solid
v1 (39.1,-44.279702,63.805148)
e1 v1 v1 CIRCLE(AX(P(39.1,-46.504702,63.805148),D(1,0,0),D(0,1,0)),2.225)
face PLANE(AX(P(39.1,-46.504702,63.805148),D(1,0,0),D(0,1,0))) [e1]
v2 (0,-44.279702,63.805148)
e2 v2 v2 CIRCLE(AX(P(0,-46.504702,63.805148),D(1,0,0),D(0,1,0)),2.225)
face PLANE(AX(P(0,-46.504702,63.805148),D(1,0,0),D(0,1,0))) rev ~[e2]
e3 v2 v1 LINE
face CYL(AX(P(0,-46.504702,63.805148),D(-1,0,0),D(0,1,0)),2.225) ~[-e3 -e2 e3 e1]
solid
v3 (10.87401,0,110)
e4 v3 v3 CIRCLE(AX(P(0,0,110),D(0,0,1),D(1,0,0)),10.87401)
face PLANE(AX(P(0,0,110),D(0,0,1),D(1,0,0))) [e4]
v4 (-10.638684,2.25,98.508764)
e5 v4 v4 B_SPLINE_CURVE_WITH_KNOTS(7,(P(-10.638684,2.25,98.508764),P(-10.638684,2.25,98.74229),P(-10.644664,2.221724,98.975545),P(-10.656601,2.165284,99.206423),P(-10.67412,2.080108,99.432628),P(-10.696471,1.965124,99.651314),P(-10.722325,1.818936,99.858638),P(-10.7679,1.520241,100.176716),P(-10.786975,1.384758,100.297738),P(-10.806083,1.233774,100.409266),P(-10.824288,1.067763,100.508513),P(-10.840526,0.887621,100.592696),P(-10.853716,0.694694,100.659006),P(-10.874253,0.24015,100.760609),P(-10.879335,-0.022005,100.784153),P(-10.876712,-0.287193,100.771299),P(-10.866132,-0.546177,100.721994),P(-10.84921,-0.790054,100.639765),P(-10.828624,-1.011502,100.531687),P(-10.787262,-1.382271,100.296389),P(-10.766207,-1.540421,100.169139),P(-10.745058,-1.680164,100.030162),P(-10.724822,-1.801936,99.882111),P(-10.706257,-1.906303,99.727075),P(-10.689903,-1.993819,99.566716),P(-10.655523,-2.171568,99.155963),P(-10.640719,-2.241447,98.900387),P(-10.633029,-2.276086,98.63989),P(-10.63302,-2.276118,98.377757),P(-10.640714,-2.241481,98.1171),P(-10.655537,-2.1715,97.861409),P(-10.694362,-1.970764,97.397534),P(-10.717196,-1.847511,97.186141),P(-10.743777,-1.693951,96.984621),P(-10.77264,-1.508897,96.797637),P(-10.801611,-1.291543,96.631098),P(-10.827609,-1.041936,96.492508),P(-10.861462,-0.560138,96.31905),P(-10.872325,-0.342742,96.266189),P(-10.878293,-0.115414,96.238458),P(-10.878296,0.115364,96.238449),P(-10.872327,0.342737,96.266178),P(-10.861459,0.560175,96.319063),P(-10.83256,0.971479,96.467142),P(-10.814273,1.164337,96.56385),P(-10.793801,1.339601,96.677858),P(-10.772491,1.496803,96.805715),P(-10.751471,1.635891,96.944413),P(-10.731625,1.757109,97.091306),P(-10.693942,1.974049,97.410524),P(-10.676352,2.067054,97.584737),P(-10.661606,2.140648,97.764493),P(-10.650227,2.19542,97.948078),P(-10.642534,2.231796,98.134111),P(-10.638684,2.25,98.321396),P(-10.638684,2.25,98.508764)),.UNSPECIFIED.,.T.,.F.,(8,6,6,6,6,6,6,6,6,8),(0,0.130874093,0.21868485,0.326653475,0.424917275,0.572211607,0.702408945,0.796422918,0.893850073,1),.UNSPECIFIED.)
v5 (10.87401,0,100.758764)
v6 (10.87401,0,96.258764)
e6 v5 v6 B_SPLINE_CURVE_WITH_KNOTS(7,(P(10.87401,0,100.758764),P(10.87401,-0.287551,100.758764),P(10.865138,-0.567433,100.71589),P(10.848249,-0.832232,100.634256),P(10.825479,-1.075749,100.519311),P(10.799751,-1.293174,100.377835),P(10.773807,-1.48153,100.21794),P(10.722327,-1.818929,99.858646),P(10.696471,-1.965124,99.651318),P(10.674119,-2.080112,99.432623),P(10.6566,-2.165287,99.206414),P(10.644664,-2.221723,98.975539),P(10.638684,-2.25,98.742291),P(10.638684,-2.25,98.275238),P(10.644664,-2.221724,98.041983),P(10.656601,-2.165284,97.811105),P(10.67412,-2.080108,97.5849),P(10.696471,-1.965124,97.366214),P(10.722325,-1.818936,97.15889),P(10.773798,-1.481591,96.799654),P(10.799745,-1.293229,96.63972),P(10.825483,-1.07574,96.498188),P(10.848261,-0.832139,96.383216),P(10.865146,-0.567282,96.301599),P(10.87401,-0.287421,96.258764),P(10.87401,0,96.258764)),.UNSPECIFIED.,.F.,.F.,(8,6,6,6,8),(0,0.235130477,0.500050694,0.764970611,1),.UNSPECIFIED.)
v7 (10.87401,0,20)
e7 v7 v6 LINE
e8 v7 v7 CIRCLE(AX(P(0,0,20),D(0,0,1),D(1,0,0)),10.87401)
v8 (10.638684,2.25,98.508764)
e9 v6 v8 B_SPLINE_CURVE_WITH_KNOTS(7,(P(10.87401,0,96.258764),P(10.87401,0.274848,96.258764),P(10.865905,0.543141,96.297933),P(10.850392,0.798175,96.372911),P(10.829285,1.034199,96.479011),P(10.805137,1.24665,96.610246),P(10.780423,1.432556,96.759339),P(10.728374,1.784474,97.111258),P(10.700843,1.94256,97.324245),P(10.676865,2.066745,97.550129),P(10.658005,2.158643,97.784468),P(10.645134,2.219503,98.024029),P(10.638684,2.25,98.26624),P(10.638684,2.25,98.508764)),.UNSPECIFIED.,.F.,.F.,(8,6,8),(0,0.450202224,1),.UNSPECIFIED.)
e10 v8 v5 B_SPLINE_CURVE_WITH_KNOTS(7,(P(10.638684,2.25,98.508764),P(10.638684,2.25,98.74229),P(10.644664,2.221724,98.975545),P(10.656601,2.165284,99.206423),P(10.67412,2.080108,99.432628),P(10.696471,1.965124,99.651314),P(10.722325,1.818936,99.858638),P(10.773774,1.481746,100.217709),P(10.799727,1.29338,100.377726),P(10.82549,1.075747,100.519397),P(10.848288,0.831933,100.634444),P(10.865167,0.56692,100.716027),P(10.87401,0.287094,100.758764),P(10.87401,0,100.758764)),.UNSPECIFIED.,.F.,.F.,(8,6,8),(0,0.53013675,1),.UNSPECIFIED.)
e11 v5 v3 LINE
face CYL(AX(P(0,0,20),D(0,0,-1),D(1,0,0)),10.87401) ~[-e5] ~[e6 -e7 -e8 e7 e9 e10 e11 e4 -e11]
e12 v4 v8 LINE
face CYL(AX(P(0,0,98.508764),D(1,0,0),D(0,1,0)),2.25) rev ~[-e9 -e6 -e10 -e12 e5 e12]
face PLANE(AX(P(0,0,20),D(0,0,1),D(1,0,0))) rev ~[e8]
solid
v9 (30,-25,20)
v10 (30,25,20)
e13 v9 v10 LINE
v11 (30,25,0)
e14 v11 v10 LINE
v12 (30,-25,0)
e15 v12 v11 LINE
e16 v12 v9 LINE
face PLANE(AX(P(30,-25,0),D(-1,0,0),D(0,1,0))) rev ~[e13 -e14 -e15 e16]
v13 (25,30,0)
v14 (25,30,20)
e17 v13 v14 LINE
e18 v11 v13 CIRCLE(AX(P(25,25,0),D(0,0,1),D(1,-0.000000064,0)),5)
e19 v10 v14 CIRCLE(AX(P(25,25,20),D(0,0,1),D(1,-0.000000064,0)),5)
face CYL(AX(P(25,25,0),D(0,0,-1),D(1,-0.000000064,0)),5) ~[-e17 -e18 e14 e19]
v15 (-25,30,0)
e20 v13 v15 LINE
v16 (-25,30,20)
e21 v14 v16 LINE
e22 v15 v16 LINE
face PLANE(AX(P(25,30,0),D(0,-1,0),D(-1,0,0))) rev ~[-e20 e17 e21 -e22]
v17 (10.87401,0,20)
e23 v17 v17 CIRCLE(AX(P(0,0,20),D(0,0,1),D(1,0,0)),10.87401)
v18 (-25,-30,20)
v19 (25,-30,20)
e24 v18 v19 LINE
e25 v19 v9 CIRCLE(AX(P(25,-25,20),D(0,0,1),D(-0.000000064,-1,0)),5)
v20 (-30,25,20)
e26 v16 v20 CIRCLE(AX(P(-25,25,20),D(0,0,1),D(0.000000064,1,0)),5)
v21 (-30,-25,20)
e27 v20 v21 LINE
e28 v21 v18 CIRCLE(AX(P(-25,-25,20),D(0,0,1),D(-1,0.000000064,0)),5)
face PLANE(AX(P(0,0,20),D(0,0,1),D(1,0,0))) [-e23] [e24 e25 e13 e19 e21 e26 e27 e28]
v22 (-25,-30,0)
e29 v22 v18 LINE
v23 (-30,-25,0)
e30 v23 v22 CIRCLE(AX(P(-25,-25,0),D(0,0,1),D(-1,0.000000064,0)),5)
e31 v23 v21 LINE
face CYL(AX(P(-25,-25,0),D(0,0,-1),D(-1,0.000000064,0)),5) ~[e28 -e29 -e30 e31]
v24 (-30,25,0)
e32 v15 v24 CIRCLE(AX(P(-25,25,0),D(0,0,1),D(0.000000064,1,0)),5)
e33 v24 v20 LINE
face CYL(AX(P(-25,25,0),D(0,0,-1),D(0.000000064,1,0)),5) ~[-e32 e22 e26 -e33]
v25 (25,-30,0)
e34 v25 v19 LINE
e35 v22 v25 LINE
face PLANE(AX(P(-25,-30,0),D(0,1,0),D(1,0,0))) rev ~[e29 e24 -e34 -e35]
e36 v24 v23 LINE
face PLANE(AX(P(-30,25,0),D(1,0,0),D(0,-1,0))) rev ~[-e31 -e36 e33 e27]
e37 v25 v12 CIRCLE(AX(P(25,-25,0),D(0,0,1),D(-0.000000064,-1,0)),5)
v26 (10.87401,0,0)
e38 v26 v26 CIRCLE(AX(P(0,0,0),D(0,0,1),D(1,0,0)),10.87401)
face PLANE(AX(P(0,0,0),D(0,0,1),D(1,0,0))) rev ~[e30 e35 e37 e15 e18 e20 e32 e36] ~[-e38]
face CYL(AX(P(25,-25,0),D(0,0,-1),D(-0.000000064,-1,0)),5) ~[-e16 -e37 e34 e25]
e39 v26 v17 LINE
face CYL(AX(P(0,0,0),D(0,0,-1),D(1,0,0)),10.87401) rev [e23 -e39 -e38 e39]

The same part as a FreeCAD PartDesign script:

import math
import FreeCAD as App
import Part
import Sketcher

V = App.Vector
Q = App.Units.Quantity

doc = App.newDocument("Part")
params = doc.addObject("Spreadsheet::Sheet", "Params")
for row, (alias, value) in enumerate([
    ("sketch1_radius", "5 mm"),
    ("sketch1_width", "50 mm"),
    ("pad1_length", "20 mm"),
    ("pad2_length", "90 mm"),
    ("sketch3_diameter", "4.5 mm"),
    ("pocket1_length", "45.4 mm"),
    ("sketch4_diameter", "4.45 mm"),
    ("pad3_length", "39.1 mm"),
], start=1):
    params.set(f"A{row}", alias)
    params.set(f"B{row}", "=" + value)
    params.setAlias(f"B{row}", alias)

body = doc.addObject("PartDesign::Body", "Body")

# Sketch on XY plane
sketch1 = body.newObject("Sketcher::SketchObject", "Sketch")
sketch1.AttachmentSupport = (doc.getObject("XY_Plane"), [""])
sketch1.MapMode = "FlatFace"
sketch1.addGeometry(Part.LineSegment(V(25, 30, 0), V(-25, 30, 0)), False)
sketch1.addGeometry(Part.ArcOfCircle(Part.Circle(V(-25, 25, 0), V(0, 0, 1), 5), math.radians(90), math.radians(180)), False)
sketch1.addGeometry(Part.LineSegment(V(-30, 25, 0), V(-30, -25, 0)), False)
sketch1.addGeometry(Part.ArcOfCircle(Part.Circle(V(-25, -25, 0), V(0, 0, 1), 5), math.radians(180), math.radians(270)), False)
sketch1.addGeometry(Part.LineSegment(V(-25, -30, 0), V(25, -30, 0)), False)
sketch1.addGeometry(Part.ArcOfCircle(Part.Circle(V(25, -25, 0), V(0, 0, 1), 5), math.radians(-90), math.radians(0)), False)
sketch1.addGeometry(Part.LineSegment(V(30, -25, 0), V(30, 25, 0)), False)
sketch1.addGeometry(Part.ArcOfCircle(Part.Circle(V(25, 25, 0), V(0, 0, 1), 5), math.radians(0), math.radians(90)), False)
sketch1.addGeometry(Part.Circle(V(0, 0, 0), V(0, 0, 1), 10.9), False)
sketch1.addConstraint(Sketcher.Constraint("Tangent", 0, 2, 1, 1))
sketch1.addConstraint(Sketcher.Constraint("Tangent", 1, 2, 2, 1))
sketch1.addConstraint(Sketcher.Constraint("Tangent", 2, 2, 3, 1))
sketch1.addConstraint(Sketcher.Constraint("Tangent", 3, 2, 4, 1))
sketch1.addConstraint(Sketcher.Constraint("Tangent", 4, 2, 5, 1))
sketch1.addConstraint(Sketcher.Constraint("Tangent", 5, 2, 6, 1))
sketch1.addConstraint(Sketcher.Constraint("Tangent", 6, 2, 7, 1))
sketch1.addConstraint(Sketcher.Constraint("Tangent", 7, 2, 0, 1))
sketch1.addConstraint(Sketcher.Constraint("Horizontal", 0))
sketch1.addConstraint(Sketcher.Constraint("Vertical", 2))
sketch1.addConstraint(Sketcher.Constraint("Horizontal", 4))
sketch1.addConstraint(Sketcher.Constraint("Vertical", 6))
sketch1.addConstraint(Sketcher.Constraint("Coincident", 8, 3, -1, 1))
sketch1.addConstraint(Sketcher.Constraint("Equal", 1, 3))
sketch1.addConstraint(Sketcher.Constraint("Equal", 3, 5))
sketch1.addConstraint(Sketcher.Constraint("Equal", 5, 7))
sketch1.addConstraint(Sketcher.Constraint("Symmetric", 1, 3, 5, 3, -1, 1))
sketch1.addConstraint(Sketcher.Constraint("Equal", 4, 2))
sketch1.addConstraint(Sketcher.Constraint("Radius", 1, Q("5 mm")))
sketch1.addConstraint(Sketcher.Constraint("DistanceX", 0, 2, 0, 1, Q("50 mm")))
sketch1.addConstraint(Sketcher.Constraint("Diameter", 8, Q("21.74802 mm")))
sketch1.setExpression("Constraints[18]", "Params.sketch1_radius")
sketch1.setExpression("Constraints[19]", "Params.sketch1_width")
pad1 = body.newObject("PartDesign::Pad", "Pad")
pad1.Profile = sketch1
pad1.setExpression("Length", "Params.pad1_length")
body2 = doc.addObject("PartDesign::Body", "Body001")

# Sketch on XY plane
sketch2 = body2.newObject("Sketcher::SketchObject", "Sketch001")
sketch2.AttachmentSupport = (doc.getObject("XY_Plane001"), [""])
sketch2.MapMode = "FlatFace"
sketch2.AttachmentOffset = App.Placement(V(0, 0, 20), App.Rotation())
sketch2.addGeometry(Part.Circle(V(0, 0, 0), V(0, 0, 1), 11), False)
sketch2.addConstraint(Sketcher.Constraint("Coincident", 0, 3, -1, 1))
sketch2.addConstraint(Sketcher.Constraint("Diameter", 0, Q("21.74802 mm")))
pad2 = body2.newObject("PartDesign::Pad", "Pad001")
pad2.Profile = sketch2
pad2.setExpression("Length", "Params.pad2_length")

# Sketch on YZ plane
sketch3 = body2.newObject("Sketcher::SketchObject", "Sketch002")
sketch3.AttachmentSupport = (doc.getObject("YZ_Plane001"), [""])
sketch3.MapMode = "FlatFace"
sketch3.addGeometry(Part.Circle(V(0, 98.5, 0), V(0, 0, 1), 2.2), False)
sketch3.addConstraint(Sketcher.Constraint("PointOnObject", 0, 3, -2))
sketch3.addConstraint(Sketcher.Constraint("Diameter", 0, Q("4.5 mm")))
sketch3.addConstraint(Sketcher.Constraint("DistanceY", -1, 1, 0, 3, Q("98.508764 mm")))
sketch3.setExpression("Constraints[1]", "Params.sketch3_diameter")
pocket1 = body2.newObject("PartDesign::Pocket", "Pocket")
pocket1.Profile = sketch3
pocket1.setExpression("Length", "Params.pocket1_length")
pocket1.Midplane = True
body3 = doc.addObject("PartDesign::Body", "Body002")

# Sketch on YZ plane
sketch4 = body3.newObject("Sketcher::SketchObject", "Sketch003")
sketch4.AttachmentSupport = (doc.getObject("YZ_Plane002"), [""])
sketch4.MapMode = "FlatFace"
sketch4.addGeometry(Part.Circle(V(-46.5, 63.8, 0), V(0, 0, 1), 2.2), False)
sketch4.addConstraint(Sketcher.Constraint("Diameter", 0, Q("4.45 mm")))
sketch4.addConstraint(Sketcher.Constraint("DistanceY", -1, 1, 0, 3, Q("63.805148 mm")))
sketch4.addConstraint(Sketcher.Constraint("DistanceX", 0, 3, -1, 1, Q("46.504702 mm")))
sketch4.setExpression("Constraints[0]", "Params.sketch4_diameter")
pad3 = body3.newObject("PartDesign::Pad", "Pad002")
pad3.Profile = sketch4
pad3.setExpression("Length", "Params.pad3_length")

doc.recompute()
